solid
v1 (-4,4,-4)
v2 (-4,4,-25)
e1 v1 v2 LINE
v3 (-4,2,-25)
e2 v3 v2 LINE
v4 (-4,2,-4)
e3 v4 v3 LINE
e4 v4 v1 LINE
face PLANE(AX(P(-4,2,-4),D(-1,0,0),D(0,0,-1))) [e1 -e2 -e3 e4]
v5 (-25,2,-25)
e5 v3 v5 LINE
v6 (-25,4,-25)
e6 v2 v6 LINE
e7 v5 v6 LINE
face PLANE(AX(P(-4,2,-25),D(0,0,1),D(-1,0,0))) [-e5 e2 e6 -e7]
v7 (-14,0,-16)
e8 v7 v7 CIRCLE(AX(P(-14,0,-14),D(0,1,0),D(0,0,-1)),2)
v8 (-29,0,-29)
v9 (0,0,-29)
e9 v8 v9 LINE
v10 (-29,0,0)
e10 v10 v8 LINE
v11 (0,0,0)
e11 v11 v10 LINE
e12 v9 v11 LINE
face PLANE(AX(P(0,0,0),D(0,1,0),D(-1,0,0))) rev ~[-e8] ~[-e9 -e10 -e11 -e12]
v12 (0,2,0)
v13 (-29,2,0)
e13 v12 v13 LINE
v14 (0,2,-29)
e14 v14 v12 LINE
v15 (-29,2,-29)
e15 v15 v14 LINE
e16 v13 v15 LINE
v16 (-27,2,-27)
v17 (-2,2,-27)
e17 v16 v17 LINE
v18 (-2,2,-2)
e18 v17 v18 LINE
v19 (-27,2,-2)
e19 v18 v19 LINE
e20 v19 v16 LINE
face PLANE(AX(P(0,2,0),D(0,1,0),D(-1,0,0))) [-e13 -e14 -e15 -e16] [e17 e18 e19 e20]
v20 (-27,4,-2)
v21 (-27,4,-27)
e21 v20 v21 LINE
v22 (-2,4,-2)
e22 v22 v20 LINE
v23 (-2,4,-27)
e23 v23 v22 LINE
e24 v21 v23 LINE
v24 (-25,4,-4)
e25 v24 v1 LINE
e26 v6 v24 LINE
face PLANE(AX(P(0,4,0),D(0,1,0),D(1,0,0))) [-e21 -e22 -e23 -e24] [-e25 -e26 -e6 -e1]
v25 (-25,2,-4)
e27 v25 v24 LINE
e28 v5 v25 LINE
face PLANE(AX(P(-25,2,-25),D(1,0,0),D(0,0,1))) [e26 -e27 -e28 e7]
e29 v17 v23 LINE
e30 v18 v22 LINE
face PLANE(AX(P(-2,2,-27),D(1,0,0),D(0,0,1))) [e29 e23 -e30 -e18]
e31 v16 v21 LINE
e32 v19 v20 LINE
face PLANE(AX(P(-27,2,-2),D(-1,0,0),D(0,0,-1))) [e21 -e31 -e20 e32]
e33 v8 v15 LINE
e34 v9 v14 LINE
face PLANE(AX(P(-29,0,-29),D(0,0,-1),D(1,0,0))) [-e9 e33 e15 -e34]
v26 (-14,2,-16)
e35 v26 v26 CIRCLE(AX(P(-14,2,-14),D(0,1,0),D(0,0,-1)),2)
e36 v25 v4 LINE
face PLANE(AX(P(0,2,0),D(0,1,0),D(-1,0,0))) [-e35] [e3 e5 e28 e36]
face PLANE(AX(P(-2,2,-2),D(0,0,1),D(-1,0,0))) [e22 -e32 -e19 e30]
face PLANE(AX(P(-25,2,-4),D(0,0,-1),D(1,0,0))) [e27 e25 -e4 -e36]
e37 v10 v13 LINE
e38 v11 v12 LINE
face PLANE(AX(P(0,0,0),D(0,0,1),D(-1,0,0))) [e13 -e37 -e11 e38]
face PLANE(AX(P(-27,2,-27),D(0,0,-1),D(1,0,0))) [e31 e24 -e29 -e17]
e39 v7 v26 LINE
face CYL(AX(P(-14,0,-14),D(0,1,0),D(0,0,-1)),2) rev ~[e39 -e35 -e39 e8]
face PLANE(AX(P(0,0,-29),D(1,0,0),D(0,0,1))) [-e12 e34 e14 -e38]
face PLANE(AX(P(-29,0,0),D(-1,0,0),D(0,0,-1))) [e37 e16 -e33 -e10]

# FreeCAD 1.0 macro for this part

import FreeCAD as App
import Part
import Sketcher


def add_polygon(sketch, points):
    """Adds a closed chain of lines whose ends are joined by coincident constraints."""
    first, n = sketch.GeometryCount, len(points)
    for a, b in zip(points, points[1:] + points[:1]):
        sketch.addGeometry(Part.LineSegment(App.Vector(*a, 0), App.Vector(*b, 0)), False)
    for i in range(n):
        sketch.addConstraint(Sketcher.Constraint("Coincident", first + i, 2, first + (i + 1) % n, 1))

doc = App.newDocument("Part")
body = doc.addObject("PartDesign::Body", "Body")

# Sketch on XZ plane
sketch1 = body.newObject("Sketcher::SketchObject", "Sketch")
sketch1.AttachmentSupport = (doc.getObject("XZ_Plane"), [""])
sketch1.MapMode = "FlatFace"
add_polygon(sketch1, [(-29, 0), (0, 0), (0, -29), (-29, -29)])  # lines 0-3
sketch1.addConstraint([
    Sketcher.Constraint("Horizontal", 0),
    Sketcher.Constraint("Vertical", 1),
    Sketcher.Constraint("Horizontal", 2),
    Sketcher.Constraint("Vertical", 3),
    Sketcher.Constraint("Coincident", 0, 2, -1, 1),
    Sketcher.Constraint("Equal", 2, 1),
    Sketcher.Constraint("DistanceX", 0, 1, 0, 2, 29.0),
])
pad1 = body.newObject("PartDesign::Pad", "Pad")
pad1.Profile = sketch1
pad1.Length = 2
pad1.Reversed = True

# Sketch on XZ plane
sketch2 = body.newObject("Sketcher::SketchObject", "Sketch001")
sketch2.AttachmentSupport = (doc.getObject("XZ_Plane"), [""])
sketch2.MapMode = "FlatFace"
sketch2.AttachmentOffset = App.Placement(App.Vector(0, 0, -2), App.Rotation())
add_polygon(sketch2, [(-27, -27), (-27, -2), (-2, -2), (-2, -27)])  # lines 0-3
add_polygon(sketch2, [(-25, -4), (-25, -25), (-4, -25), (-4, -4)])  # lines 4-7
sketch2.addConstraint([
    Sketcher.Constraint("Vertical", 0),
    Sketcher.Constraint("Horizontal", 1),
    Sketcher.Constraint("Vertical", 2),
    Sketcher.Constraint("Horizontal", 3),
    Sketcher.Constraint("Vertical", 4),
    Sketcher.Constraint("Horizontal", 5),
    Sketcher.Constraint("Vertical", 6),
    Sketcher.Constraint("Horizontal", 7),
    Sketcher.Constraint("Equal", 3, 0),
    Sketcher.Constraint("Equal", 7, 4),
    Sketcher.Constraint("DistanceY", 0, 2, -1, 1, 2.0),
    Sketcher.Constraint("DistanceX", 1, 2, -1, 1, 2.0),
    Sketcher.Constraint("DistanceX", 3, 2, 4, 2, 2.0),
    Sketcher.Constraint("DistanceY", 3, 2, 4, 2, 2.0),
    Sketcher.Constraint("DistanceX", 5, 2, 2, 2, 2.0),
    Sketcher.Constraint("DistanceX", 1, 1, 1, 2, 25.0),
])
pad2 = body.newObject("PartDesign::Pad", "Pad001")
pad2.Profile = sketch2
pad2.Length = 2
pad2.Reversed = True

# Sketch on XZ plane
sketch3 = body.newObject("Sketcher::SketchObject", "Sketch002")
sketch3.AttachmentSupport = (doc.getObject("XZ_Plane"), [""])
sketch3.MapMode = "FlatFace"
sketch3.addGeometry(Part.Circle(App.Vector(-14, -14, 0), App.Vector(0, 0, 1), 2), False)
sketch3.addConstraint([
    Sketcher.Constraint("Diameter", 0, 4.0),
    Sketcher.Constraint("DistanceX", 0, 3, -1, 1, 14.0),
    Sketcher.Constraint("DistanceY", 0, 3, -1, 1, 14.0),
])
doc.recompute()
hole = body.newObject("PartDesign::Hole", "Hole")
hole.Profile = sketch3
hole.ThreadType = "None"
hole.Diameter = 4
hole.DepthType = "ThroughAll"

doc.recompute()
